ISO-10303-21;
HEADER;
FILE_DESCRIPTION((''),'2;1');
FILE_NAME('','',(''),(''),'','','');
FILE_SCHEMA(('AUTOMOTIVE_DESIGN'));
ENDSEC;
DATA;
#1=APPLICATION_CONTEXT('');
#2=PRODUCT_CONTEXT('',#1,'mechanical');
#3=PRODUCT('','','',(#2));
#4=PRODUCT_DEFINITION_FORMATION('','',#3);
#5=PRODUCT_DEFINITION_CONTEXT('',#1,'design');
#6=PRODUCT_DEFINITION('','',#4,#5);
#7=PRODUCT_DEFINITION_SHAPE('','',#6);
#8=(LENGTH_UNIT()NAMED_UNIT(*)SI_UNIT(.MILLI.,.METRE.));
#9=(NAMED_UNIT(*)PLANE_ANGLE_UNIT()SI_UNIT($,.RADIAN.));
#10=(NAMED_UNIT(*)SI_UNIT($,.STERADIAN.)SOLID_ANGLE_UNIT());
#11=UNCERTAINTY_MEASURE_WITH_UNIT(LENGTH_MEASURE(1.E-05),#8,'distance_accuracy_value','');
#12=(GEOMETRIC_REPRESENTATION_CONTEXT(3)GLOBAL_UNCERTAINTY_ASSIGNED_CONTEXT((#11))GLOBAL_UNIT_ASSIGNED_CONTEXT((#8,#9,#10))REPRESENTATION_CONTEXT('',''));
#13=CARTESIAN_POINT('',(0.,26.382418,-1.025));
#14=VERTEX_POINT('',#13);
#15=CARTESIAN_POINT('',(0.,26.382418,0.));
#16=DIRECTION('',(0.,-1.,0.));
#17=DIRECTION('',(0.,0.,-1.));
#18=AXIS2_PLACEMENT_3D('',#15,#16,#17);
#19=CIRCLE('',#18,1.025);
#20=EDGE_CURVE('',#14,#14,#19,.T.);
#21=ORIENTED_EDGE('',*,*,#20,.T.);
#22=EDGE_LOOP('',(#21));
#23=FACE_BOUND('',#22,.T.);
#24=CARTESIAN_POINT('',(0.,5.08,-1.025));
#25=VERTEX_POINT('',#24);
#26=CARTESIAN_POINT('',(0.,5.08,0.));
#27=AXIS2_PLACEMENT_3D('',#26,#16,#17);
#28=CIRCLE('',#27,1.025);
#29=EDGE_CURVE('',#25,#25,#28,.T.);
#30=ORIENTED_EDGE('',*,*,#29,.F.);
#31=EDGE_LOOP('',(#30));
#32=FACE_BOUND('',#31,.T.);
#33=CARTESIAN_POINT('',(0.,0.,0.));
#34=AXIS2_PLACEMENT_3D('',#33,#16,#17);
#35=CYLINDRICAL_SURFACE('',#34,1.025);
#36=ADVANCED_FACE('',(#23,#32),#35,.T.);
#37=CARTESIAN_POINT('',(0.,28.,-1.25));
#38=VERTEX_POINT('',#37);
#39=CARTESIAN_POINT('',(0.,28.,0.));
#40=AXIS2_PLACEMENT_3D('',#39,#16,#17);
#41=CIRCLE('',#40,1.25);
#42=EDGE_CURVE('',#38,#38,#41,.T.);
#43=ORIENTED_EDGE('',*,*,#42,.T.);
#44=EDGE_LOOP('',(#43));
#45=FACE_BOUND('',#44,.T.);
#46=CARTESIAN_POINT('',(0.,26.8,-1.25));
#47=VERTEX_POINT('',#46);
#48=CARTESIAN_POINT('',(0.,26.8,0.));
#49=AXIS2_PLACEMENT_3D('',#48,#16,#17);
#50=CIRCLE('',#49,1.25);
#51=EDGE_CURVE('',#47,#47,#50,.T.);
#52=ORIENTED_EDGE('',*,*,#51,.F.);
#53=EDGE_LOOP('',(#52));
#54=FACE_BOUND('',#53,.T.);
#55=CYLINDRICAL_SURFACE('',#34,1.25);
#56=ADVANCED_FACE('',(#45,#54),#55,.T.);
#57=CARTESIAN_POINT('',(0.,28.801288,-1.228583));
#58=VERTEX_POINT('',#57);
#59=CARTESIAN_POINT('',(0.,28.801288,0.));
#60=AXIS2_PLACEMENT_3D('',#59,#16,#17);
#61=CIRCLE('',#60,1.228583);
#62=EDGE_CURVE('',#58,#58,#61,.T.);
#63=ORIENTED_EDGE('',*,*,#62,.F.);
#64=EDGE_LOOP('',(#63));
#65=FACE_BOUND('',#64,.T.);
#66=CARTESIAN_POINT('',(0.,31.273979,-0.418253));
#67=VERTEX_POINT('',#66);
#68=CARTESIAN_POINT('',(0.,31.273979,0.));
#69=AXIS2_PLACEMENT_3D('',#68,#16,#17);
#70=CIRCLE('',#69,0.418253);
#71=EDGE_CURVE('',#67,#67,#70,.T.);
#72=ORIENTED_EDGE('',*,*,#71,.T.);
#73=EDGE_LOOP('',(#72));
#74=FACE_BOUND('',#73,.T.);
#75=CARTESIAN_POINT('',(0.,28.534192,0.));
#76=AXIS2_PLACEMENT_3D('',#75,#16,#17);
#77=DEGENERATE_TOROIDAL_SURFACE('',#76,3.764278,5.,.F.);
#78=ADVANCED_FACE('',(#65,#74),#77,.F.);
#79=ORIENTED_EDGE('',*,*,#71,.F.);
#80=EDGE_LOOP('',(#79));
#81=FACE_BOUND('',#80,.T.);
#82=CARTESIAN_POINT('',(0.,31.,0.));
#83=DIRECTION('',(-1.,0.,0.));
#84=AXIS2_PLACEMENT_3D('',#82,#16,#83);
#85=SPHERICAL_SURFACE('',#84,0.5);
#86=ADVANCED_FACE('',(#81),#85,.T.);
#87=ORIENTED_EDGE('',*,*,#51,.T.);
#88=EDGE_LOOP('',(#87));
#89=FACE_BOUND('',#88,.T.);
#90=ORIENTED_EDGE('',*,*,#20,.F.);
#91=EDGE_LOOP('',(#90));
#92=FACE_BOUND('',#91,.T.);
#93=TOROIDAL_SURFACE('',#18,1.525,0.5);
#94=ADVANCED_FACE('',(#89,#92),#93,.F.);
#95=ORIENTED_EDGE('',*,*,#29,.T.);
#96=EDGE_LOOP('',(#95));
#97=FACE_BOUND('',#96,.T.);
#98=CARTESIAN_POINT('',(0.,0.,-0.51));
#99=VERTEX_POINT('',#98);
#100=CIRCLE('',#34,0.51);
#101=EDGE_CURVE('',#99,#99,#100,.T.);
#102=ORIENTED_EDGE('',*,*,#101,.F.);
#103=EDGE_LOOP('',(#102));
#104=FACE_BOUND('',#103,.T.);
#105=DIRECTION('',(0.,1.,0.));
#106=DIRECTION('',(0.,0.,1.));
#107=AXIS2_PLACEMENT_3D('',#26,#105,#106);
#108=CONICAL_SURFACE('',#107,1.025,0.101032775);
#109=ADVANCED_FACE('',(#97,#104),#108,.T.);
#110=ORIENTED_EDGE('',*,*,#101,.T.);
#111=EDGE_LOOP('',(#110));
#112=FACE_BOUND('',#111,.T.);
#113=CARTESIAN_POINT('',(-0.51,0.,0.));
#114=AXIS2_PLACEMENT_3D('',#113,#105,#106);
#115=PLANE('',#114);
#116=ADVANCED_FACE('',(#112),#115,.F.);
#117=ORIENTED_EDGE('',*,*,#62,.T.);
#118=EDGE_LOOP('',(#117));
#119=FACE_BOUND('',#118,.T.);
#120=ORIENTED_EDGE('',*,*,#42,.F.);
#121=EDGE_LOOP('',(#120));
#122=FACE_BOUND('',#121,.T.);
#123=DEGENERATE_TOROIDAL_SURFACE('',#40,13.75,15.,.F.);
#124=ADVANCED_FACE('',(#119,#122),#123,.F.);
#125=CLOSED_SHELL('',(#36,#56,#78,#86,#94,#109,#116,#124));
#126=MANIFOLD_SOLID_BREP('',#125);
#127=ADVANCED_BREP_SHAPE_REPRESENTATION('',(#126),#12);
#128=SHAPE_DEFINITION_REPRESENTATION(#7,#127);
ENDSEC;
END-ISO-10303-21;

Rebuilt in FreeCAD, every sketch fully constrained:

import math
import FreeCAD as App
import Part
import Sketcher
from FreeCAD import Vector
Q = App.Units.Quantity

doc = App.newDocument("Part")
body = doc.addObject("PartDesign::Body", "Body")

sketch1 = body.newObject("Sketcher::SketchObject", "Sketch")
sketch1.AttachmentSupport = (doc.getObject("XY_Plane"), [""])
sketch1.MapMode = "FlatFace"
sketch1.addGeometry([
    Part.LineSegment(Vector(-1.02, 5.08, 0), Vector(-0.51, 0, 0)),
    Part.LineSegment(Vector(-0.51, 0, 0), Vector(0, 0, 0)),
    Part.LineSegment(Vector(0, 0, 0), Vector(0, 31.5, 0)),
    Part.ArcOfCircle(Part.Circle(Vector(0, 31, 0), Vector(0, 0, 1), 0.5), math.radians(90), math.radians(147)),
    Part.ArcOfCircle(Part.Circle(Vector(3.76, 28.53, 0), Vector(0, 0, 1), 5), math.radians(147), math.radians(177)),
    Part.ArcOfCircle(Part.Circle(Vector(13.75, 28, 0), Vector(0, 0, 1), 15), math.radians(176.94), math.radians(180)),
    Part.LineSegment(Vector(-1.25, 28, 0), Vector(-1.25, 26.8, 0)),
    Part.ArcOfCircle(Part.Circle(Vector(-1.52, 26.38, 0), Vector(0, 0, 1), 0.5), math.radians(0), math.radians(57)),
    Part.LineSegment(Vector(-1.02, 26.38, 0), Vector(-1.02, 5.08, 0)),
], False)
sketch1.addConstraint([
    Sketcher.Constraint("Coincident", 0, 2, 1, 1),
    Sketcher.Constraint("Coincident", 1, 2, 2, 1),
    Sketcher.Constraint("Coincident", 2, 2, 3, 1),
    Sketcher.Constraint("Tangent", 3, 2, 4, 1),
    Sketcher.Constraint("Tangent", 4, 2, 5, 1),
    Sketcher.Constraint("Tangent", 5, 2, 6, 1),
    Sketcher.Constraint("Coincident", 6, 2, 7, 2),
    Sketcher.Constraint("Tangent", 7, 1, 8, 1),
    Sketcher.Constraint("Coincident", 8, 2, 0, 1),
    Sketcher.Constraint("Horizontal", 1),
    Sketcher.Constraint("Vertical", 2),
    Sketcher.Constraint("Vertical", 6),
    Sketcher.Constraint("Vertical", 8),
    Sketcher.Constraint("Coincident", 1, 2, -1, 1),
    Sketcher.Constraint("Equal", 3, 7),
    Sketcher.Constraint("PointOnObject", 3, 3, -2),
    Sketcher.Constraint("Radius", 4, Q("5 mm")),
    Sketcher.Constraint("Radius", 5, Q("14.999999 mm")),
    Sketcher.Constraint("Radius", 3, Q("0.5 mm")),
    Sketcher.Constraint("DistanceY", 2, 1, 2, 2, Q("31.5 mm")),
    Sketcher.Constraint("DistanceY", 6, 2, 6, 1, Q("1.2 mm")),
    Sketcher.Constraint("DistanceY", -1, 1, 5, 3, Q("28 mm")),
    Sketcher.Constraint("DistanceX", 1, 1, 1, 2, Q("0.51 mm")),
    Sketcher.Constraint("DistanceX", -1, 1, 5, 3, Q("13.749999 mm")),
    Sketcher.Constraint("DistanceY", -1, 1, 8, 2, Q("5.08 mm")),
    Sketcher.Constraint("DistanceX", 7, 3, -1, 1, Q("1.525 mm")),
])
revolution = body.newObject("PartDesign::Revolution", "Revolution")
revolution.Profile = sketch1
revolution.ReferenceAxis = (sketch1, ["V_Axis"])
revolution.Angle = 360

doc.recompute()
